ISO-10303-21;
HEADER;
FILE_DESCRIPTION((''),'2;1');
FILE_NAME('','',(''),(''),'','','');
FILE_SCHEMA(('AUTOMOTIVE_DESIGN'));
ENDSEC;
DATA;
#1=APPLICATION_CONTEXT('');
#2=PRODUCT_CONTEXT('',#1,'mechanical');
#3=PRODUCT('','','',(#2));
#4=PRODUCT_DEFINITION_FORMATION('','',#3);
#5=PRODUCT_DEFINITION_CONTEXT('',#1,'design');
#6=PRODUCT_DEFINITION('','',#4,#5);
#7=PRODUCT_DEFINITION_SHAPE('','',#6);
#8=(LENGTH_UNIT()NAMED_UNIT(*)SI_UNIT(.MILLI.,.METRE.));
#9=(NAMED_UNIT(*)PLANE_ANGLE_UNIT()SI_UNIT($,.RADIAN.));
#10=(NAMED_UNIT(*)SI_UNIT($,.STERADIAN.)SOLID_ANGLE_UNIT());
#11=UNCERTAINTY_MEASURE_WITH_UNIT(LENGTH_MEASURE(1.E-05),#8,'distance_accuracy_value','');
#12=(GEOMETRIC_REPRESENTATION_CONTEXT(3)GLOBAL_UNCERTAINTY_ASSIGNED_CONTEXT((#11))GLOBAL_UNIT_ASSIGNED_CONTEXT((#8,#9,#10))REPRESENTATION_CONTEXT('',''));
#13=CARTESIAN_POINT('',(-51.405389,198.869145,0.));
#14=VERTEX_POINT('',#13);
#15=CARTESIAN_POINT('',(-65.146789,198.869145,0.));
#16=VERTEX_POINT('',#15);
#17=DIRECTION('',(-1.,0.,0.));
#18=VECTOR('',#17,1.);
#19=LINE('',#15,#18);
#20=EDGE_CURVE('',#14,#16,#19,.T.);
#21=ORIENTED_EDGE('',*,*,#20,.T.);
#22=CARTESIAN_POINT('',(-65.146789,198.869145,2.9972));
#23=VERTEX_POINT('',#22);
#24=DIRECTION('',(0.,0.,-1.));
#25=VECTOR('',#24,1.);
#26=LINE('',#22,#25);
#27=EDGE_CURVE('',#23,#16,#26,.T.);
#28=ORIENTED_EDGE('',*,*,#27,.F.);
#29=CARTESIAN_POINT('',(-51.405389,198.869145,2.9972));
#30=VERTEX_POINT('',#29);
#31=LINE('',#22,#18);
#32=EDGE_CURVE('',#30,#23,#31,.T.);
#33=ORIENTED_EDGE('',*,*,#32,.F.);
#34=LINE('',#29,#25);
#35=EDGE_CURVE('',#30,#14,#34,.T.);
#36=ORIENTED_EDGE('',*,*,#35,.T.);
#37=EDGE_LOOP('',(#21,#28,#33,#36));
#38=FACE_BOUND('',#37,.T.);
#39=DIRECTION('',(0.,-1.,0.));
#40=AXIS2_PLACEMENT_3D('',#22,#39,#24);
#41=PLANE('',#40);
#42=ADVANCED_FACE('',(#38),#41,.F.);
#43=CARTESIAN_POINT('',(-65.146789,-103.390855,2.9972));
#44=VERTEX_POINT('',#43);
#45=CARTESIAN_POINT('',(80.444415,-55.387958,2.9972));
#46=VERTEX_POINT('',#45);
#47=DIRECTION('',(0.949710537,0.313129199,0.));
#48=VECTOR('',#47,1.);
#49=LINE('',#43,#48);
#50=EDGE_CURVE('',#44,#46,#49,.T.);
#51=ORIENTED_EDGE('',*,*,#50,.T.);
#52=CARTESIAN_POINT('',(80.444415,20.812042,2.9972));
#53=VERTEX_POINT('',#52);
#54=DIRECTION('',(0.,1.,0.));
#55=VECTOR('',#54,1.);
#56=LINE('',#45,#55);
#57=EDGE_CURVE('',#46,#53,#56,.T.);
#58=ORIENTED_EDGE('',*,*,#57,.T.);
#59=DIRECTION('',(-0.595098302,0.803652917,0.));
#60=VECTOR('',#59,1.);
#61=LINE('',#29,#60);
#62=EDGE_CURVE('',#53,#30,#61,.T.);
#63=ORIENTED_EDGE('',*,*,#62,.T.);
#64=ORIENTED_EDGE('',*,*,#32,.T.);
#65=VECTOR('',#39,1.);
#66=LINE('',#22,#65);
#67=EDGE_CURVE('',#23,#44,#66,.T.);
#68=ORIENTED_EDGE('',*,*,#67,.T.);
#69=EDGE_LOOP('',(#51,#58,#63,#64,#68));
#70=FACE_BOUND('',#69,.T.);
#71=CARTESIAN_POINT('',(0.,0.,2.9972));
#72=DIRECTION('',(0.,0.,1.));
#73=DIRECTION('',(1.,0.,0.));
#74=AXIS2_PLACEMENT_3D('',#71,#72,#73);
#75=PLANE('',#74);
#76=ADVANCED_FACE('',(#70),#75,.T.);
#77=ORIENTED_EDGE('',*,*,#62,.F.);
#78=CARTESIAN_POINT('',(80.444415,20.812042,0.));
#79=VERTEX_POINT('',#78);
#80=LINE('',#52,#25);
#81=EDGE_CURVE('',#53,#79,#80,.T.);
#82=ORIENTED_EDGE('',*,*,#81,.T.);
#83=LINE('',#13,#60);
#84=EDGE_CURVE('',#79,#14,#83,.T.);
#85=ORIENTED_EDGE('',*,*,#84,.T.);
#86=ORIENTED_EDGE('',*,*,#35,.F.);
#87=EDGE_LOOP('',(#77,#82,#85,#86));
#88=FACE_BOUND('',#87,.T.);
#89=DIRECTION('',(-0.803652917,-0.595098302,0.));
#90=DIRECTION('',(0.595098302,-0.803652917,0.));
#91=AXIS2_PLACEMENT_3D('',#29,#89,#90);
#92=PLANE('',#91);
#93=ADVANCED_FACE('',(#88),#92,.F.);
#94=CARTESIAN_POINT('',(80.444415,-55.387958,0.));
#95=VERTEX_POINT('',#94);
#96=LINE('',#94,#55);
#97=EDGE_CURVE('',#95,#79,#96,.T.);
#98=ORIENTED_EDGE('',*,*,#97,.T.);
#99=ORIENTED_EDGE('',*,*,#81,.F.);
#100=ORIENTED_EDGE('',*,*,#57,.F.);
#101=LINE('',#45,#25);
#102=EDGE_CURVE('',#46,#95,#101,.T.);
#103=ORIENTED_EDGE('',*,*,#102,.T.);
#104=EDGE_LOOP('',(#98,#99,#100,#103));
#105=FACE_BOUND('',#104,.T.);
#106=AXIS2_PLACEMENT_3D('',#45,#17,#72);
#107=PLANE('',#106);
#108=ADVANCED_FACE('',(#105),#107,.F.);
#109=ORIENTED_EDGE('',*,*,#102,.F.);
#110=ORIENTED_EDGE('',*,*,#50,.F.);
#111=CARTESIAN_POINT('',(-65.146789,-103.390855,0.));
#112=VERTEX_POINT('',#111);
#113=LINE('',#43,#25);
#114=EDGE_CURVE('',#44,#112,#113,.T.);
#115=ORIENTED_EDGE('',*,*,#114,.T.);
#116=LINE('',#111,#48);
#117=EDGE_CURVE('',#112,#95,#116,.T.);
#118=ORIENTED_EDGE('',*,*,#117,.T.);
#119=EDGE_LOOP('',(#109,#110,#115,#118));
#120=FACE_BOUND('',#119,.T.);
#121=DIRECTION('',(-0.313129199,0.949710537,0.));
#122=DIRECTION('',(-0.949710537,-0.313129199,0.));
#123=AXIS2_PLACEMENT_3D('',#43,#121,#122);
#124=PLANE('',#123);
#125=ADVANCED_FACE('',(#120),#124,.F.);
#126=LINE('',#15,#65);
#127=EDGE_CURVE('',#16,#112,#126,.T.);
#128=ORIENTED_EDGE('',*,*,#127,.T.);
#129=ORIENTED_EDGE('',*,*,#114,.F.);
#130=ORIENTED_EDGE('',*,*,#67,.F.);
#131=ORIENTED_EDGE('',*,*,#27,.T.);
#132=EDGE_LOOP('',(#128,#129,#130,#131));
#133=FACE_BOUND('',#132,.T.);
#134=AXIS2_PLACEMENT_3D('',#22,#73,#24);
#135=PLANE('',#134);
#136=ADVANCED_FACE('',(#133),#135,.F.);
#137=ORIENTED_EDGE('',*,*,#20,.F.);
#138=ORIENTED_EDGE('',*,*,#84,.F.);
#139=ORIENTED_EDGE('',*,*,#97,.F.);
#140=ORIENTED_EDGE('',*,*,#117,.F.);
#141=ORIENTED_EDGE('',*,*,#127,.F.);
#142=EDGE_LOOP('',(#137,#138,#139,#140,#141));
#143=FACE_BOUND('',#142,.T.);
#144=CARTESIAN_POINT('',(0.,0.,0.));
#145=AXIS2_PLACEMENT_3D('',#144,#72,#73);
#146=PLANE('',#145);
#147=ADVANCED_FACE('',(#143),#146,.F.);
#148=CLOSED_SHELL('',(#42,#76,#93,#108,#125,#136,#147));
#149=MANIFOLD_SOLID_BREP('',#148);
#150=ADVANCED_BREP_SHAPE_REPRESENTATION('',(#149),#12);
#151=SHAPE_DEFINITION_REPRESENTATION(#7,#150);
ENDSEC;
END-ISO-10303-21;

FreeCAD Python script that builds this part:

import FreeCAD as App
import Part
import Sketcher
Q = App.Units.Quantity

doc = App.newDocument("Part")
body = doc.addObject("PartDesign::Body", "Body")

sketch1 = body.newObject("Sketcher::SketchObject", "Sketch")
sketch1.AttachmentSupport = (doc.getObject("XY_Plane"), [""])
sketch1.MapMode = "FlatFace"
sketch1.addGeometry(Part.LineSegment(App.Vector(-65, 199, 0), App.Vector(-65, -103, 0)), False)
sketch1.addGeometry(Part.LineSegment(App.Vector(-65, -103, 0), App.Vector(80, -55, 0)), False)
sketch1.addGeometry(Part.LineSegment(App.Vector(80, -55, 0), App.Vector(80, 21, 0)), False)
sketch1.addGeometry(Part.LineSegment(App.Vector(80, 21, 0), App.Vector(-51, 199, 0)), False)
sketch1.addGeometry(Part.LineSegment(App.Vector(-51, 199, 0), App.Vector(-65, 199, 0)), False)
sketch1.addConstraint(Sketcher.Constraint("Coincident", 0, 2, 1, 1))
sketch1.addConstraint(Sketcher.Constraint("Coincident", 1, 2, 2, 1))
sketch1.addConstraint(Sketcher.Constraint("Coincident", 2, 2, 3, 1))
sketch1.addConstraint(Sketcher.Constraint("Coincident", 3, 2, 4, 1))
sketch1.addConstraint(Sketcher.Constraint("Coincident", 4, 2, 0, 1))
sketch1.addConstraint(Sketcher.Constraint("Vertical", 0))
sketch1.addConstraint(Sketcher.Constraint("Vertical", 2))
sketch1.addConstraint(Sketcher.Constraint("Horizontal", 4))
sketch1.addConstraint(Sketcher.Constraint("DistanceY", 2, 1, 2, 2, Q("3 in")))
sketch1.addConstraint(Sketcher.Constraint("DistanceY", 0, 2, 0, 1, Q("11.9 in")))
sketch1.addConstraint(Sketcher.Constraint("DistanceX", 4, 2, 4, 1, Q("0.541 in")))
sketch1.addConstraint(Sketcher.Constraint("Distance", 1, Q("153.300609 mm")))
sketch1.addConstraint(Sketcher.Constraint("DistanceX", 0, 2, -1, 1, Q("65.146789 mm")))
sketch1.addConstraint(Sketcher.Constraint("DistanceY", 1, 2, -1, 1, Q("55.387958 mm")))
sketch1.addConstraint(Sketcher.Constraint("Distance", 3, Q("221.559705 mm")))
pad1 = body.newObject("PartDesign::Pad", "Pad")
pad1.Profile = sketch1
pad1.Length = Q("0.118 in")

doc.recompute()
